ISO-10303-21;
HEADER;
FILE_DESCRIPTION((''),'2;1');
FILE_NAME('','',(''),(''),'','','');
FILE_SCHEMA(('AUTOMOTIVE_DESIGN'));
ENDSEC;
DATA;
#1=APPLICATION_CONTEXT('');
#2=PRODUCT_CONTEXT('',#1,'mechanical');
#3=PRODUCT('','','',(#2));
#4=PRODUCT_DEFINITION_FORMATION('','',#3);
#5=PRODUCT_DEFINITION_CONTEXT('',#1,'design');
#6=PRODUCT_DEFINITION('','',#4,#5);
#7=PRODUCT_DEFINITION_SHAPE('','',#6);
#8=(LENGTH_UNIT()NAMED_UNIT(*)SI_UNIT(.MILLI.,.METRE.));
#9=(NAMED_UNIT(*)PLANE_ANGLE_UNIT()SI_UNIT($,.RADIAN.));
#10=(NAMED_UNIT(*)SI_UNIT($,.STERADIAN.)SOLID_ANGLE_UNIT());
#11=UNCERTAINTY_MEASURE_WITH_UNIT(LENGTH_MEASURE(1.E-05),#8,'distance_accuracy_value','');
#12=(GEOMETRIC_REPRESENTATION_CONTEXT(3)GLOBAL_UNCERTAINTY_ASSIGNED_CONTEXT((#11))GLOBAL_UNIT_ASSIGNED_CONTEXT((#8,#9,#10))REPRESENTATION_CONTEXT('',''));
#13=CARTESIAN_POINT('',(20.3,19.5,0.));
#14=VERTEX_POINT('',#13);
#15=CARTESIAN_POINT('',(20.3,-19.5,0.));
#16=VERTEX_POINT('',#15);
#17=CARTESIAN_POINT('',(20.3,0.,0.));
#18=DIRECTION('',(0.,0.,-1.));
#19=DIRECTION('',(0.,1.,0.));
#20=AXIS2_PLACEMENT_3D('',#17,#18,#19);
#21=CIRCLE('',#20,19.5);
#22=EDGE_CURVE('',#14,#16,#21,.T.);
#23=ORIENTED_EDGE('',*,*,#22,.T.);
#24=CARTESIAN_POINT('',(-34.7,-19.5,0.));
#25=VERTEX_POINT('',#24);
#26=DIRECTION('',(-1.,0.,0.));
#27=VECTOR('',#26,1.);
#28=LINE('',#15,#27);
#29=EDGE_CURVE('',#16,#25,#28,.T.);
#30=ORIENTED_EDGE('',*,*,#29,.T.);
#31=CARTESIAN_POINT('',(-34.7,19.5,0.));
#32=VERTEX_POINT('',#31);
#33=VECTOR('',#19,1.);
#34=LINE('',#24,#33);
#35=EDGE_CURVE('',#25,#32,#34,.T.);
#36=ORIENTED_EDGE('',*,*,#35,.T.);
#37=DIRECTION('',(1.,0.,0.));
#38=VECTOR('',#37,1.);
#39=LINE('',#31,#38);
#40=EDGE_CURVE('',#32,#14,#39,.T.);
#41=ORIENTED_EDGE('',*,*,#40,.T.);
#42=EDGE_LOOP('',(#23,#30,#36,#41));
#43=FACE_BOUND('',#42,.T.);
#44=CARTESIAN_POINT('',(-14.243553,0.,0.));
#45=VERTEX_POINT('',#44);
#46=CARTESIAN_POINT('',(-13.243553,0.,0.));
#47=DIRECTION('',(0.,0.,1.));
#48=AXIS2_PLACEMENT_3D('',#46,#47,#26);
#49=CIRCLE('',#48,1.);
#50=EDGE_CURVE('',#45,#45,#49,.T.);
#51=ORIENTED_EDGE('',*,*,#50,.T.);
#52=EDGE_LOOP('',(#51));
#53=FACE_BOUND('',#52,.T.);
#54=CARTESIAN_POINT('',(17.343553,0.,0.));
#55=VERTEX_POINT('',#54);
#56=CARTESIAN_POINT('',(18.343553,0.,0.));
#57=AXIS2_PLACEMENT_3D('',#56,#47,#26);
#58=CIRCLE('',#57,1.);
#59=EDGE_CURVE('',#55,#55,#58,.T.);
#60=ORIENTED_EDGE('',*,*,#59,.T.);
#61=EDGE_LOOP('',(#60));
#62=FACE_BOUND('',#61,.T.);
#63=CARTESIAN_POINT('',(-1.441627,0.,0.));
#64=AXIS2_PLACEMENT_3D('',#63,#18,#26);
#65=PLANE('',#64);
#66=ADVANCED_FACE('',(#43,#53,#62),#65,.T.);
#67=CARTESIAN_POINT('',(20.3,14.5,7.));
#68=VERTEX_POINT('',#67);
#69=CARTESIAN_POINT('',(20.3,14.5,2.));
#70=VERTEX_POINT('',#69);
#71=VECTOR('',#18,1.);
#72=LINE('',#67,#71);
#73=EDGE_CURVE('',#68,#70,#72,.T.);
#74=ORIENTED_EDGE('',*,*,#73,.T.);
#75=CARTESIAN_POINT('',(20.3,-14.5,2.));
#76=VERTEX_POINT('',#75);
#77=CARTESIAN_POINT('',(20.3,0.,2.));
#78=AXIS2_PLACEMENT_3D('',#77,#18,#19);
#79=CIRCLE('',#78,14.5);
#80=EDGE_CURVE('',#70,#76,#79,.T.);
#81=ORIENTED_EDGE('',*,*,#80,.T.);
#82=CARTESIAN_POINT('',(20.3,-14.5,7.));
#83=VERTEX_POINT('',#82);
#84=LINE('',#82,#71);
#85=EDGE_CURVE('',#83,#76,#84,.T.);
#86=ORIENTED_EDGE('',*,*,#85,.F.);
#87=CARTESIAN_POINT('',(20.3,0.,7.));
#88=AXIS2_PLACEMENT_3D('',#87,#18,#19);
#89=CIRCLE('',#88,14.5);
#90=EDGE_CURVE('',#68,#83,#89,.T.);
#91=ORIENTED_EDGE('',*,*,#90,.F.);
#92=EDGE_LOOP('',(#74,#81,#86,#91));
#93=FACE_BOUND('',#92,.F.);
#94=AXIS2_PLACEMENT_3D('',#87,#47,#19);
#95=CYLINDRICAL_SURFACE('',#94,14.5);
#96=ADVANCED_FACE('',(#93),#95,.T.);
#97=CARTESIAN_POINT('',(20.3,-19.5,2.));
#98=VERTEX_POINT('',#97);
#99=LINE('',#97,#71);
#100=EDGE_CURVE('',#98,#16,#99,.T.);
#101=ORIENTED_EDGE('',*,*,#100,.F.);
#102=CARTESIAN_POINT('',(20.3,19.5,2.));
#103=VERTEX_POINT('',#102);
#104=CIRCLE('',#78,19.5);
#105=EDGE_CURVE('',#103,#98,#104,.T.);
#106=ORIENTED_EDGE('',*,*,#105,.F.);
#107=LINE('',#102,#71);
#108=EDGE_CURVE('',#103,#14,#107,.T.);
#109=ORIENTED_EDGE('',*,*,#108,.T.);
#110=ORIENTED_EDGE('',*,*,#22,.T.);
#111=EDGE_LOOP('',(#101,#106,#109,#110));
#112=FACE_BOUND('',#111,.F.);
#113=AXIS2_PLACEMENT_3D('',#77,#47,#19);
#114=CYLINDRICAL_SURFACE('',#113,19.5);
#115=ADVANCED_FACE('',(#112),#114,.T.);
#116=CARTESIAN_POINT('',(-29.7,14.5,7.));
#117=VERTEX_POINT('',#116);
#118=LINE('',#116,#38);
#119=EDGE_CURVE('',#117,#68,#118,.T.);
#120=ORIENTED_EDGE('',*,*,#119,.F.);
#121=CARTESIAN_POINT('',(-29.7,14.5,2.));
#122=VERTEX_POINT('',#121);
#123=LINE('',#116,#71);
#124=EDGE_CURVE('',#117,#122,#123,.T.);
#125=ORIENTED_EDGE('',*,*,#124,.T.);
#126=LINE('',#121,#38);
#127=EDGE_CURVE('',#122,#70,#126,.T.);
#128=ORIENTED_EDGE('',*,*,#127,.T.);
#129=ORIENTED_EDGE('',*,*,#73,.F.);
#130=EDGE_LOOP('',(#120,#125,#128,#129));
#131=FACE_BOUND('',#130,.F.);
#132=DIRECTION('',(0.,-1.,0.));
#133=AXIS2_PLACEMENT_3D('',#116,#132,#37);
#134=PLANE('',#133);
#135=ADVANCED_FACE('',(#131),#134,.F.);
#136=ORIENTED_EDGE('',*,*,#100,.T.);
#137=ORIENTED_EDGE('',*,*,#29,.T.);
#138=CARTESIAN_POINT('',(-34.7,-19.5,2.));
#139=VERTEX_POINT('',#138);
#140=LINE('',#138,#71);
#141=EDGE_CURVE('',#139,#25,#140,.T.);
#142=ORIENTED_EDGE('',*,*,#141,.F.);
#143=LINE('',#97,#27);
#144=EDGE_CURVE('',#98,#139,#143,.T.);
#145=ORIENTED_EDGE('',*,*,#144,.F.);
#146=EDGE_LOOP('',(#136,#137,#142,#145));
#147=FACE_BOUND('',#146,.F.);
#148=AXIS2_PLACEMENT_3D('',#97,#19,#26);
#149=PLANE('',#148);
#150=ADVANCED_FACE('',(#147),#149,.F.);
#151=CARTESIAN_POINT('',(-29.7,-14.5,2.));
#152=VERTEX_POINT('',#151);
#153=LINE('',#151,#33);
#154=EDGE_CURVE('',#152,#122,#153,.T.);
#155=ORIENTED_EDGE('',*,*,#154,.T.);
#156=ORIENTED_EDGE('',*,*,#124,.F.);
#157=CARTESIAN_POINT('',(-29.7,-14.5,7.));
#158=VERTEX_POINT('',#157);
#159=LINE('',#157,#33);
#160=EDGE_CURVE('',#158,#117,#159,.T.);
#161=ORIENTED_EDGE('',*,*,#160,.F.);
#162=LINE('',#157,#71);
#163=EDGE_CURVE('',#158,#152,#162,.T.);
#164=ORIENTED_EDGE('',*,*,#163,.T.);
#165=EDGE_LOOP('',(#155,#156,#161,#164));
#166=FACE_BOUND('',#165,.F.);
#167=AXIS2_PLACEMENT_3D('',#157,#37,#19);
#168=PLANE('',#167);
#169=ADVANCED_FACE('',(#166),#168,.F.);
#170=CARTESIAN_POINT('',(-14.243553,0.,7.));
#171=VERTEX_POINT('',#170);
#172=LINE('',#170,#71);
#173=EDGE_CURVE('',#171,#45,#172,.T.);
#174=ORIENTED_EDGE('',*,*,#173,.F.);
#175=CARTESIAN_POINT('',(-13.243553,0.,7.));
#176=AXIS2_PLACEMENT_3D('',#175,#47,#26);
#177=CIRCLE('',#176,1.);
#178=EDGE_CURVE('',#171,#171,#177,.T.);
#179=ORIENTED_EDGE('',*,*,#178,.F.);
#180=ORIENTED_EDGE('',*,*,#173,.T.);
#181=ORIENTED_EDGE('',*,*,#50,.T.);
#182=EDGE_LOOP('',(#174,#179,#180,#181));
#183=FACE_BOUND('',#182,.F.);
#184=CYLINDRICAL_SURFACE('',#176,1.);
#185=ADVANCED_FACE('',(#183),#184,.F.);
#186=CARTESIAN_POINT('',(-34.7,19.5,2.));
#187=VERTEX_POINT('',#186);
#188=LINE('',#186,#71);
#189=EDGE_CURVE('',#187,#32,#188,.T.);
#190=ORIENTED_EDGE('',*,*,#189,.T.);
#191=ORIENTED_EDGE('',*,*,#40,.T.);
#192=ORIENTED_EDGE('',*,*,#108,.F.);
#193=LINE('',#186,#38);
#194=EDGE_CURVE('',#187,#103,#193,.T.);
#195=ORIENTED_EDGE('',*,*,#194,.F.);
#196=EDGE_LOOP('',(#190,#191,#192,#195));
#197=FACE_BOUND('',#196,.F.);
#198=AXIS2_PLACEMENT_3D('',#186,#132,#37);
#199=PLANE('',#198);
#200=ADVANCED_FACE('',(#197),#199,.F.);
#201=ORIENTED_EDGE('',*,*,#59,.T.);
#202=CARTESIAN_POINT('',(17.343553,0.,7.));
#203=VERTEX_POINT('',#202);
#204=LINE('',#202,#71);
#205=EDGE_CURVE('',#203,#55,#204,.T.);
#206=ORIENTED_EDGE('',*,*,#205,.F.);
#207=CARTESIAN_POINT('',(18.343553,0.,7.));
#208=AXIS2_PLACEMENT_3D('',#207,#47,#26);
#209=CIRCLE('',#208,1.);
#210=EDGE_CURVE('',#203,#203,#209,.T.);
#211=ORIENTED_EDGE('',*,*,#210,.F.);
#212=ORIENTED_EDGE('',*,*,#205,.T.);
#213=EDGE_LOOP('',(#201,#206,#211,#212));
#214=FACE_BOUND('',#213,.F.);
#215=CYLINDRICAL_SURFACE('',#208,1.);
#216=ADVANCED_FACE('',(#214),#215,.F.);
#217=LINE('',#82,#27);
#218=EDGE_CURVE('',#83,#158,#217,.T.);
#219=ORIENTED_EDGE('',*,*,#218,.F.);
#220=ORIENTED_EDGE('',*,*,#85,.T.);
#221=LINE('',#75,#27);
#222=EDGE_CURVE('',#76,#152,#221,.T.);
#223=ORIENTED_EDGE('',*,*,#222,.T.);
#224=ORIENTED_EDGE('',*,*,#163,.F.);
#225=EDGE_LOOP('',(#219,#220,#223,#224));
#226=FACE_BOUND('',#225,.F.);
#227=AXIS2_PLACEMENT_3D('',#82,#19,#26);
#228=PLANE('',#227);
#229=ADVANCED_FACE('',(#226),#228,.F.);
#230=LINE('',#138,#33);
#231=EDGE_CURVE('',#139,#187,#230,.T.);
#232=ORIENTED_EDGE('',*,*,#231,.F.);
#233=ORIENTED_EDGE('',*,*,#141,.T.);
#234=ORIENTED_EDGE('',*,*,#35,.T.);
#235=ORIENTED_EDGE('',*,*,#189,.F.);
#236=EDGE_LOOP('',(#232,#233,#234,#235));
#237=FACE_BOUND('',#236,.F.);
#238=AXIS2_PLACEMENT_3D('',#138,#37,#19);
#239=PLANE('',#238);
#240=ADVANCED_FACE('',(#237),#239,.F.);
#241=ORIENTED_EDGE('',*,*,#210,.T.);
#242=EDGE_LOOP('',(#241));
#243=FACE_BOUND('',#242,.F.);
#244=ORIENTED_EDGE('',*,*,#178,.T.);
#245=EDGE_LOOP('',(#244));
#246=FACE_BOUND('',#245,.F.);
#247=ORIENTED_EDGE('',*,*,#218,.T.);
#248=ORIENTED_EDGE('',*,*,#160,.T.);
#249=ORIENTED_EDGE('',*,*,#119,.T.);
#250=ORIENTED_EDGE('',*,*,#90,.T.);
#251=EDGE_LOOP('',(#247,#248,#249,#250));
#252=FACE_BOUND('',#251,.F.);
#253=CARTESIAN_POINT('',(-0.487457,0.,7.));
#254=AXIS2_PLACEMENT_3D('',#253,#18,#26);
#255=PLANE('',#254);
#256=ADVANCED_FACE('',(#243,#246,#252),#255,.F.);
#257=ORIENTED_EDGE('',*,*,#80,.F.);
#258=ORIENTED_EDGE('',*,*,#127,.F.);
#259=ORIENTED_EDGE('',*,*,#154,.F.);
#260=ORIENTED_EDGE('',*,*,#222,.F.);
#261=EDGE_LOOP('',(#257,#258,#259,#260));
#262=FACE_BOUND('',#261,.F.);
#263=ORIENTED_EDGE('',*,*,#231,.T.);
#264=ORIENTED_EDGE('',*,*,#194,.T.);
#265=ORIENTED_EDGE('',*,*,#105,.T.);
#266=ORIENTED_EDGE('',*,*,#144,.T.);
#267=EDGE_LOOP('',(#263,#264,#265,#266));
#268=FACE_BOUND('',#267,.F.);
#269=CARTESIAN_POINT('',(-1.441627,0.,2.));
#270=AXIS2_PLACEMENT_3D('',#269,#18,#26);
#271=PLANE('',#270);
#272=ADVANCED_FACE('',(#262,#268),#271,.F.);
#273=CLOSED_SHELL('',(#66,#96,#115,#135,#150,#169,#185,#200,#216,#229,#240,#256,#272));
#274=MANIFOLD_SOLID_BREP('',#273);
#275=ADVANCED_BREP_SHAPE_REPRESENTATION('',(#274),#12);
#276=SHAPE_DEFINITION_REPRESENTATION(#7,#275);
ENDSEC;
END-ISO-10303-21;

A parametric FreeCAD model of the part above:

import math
import FreeCAD as App
import Part
import Sketcher

doc = App.newDocument("Part")
body = doc.addObject("PartDesign::Body", "Body")

# Sketch on XY plane
sketch1 = body.newObject("Sketcher::SketchObject", "Sketch")
sketch1.AttachmentSupport = (doc.getObject("XY_Plane"), [""])
sketch1.MapMode = "FlatFace"
sketch1.addGeometry(Part.ArcOfCircle(Part.Circle(App.Vector(-25, 0, 0), App.Vector(0, 0, 1), 14.5), math.radians(90), math.radians(270)), False)
sketch1.addGeometry(Part.LineSegment(App.Vector(-25, -14.5, 0), App.Vector(25, -14.5, 0)), False)
sketch1.addGeometry(Part.LineSegment(App.Vector(25, -14.5, 0), App.Vector(25, 14.5, 0)), False)
sketch1.addGeometry(Part.LineSegment(App.Vector(25, 14.5, 0), App.Vector(-25, 14.5, 0)), False)
sketch1.addConstraint(Sketcher.Constraint("Tangent", 0, 2, 1, 1))
sketch1.addConstraint(Sketcher.Constraint("Coincident", 1, 2, 2, 1))
sketch1.addConstraint(Sketcher.Constraint("Coincident", 2, 2, 3, 1))
sketch1.addConstraint(Sketcher.Constraint("Tangent", 3, 2, 0, 1))
sketch1.addConstraint(Sketcher.Constraint("Horizontal", 1))
sketch1.addConstraint(Sketcher.Constraint("Vertical", 2))
sketch1.addConstraint(Sketcher.Constraint("Horizontal", 3))
sketch1.addConstraint(Sketcher.Constraint("Symmetric", 0, 2, 2, 2, -1, 1))
sketch1.addConstraint(Sketcher.Constraint("Radius", 0, 14.5))
sketch1.addConstraint(Sketcher.Constraint("DistanceX", 1, 1, 1, 2, 50.0))
pad1 = body.newObject("PartDesign::Pad", "Pad")
pad1.Profile = sketch1
pad1.Length = 5

# Sketch on XY plane
sketch2 = body.newObject("Sketcher::SketchObject", "Sketch001")
sketch2.AttachmentSupport = (doc.getObject("XY_Plane"), [""])
sketch2.MapMode = "FlatFace"
sketch2.AttachmentOffset = App.Placement(App.Vector(0, 0, 5), App.Rotation())
sketch2.addGeometry(Part.LineSegment(App.Vector(-25, -19.5, 0), App.Vector(30, -19.5, 0)), False)
sketch2.addGeometry(Part.LineSegment(App.Vector(30, -19.5, 0), App.Vector(30, 19.5, 0)), False)
sketch2.addGeometry(Part.LineSegment(App.Vector(30, 19.5, 0), App.Vector(-25, 19.5, 0)), False)
sketch2.addGeometry(Part.ArcOfCircle(Part.Circle(App.Vector(-25, 0, 0), App.Vector(0, 0, 1), 19.5), math.radians(90), math.radians(270)), False)
sketch2.addConstraint(Sketcher.Constraint("Coincident", 0, 2, 1, 1))
sketch2.addConstraint(Sketcher.Constraint("Coincident", 1, 2, 2, 1))
sketch2.addConstraint(Sketcher.Constraint("Tangent", 2, 2, 3, 1))
sketch2.addConstraint(Sketcher.Constraint("Tangent", 3, 2, 0, 1))
sketch2.addConstraint(Sketcher.Constraint("Horizontal", 0))
sketch2.addConstraint(Sketcher.Constraint("Vertical", 1))
sketch2.addConstraint(Sketcher.Constraint("Horizontal", 2))
sketch2.addConstraint(Sketcher.Constraint("PointOnObject", 3, 3, -1))
sketch2.addConstraint(Sketcher.Constraint("Radius", 3, 19.5))
sketch2.addConstraint(Sketcher.Constraint("DistanceX", 0, 1, 0, 2, 55.0))
sketch2.addConstraint(Sketcher.Constraint("DistanceX", 3, 3, -1, 1, 25.0))
pad2 = body.newObject("PartDesign::Pad", "Pad001")
pad2.Profile = sketch2
pad2.Length = 2

# Sketch on XY plane
sketch3 = body.newObject("Sketcher::SketchObject", "Sketch002")
sketch3.AttachmentSupport = (doc.getObject("XY_Plane"), [""])
sketch3.MapMode = "FlatFace"
sketch3.addGeometry(Part.Circle(App.Vector(8.543553, 0, 0), App.Vector(0, 0, 1), 1), False)
sketch3.addGeometry(Part.Circle(App.Vector(-23.043553, 0, 0), App.Vector(0, 0, 1), 1), False)
sketch3.addConstraint(Sketcher.Constraint("Equal", 0, 1))
sketch3.addConstraint(Sketcher.Constraint("PointOnObject", 0, 3, -1))
sketch3.addConstraint(Sketcher.Constraint("PointOnObject", 1, 3, -1))
sketch3.addConstraint(Sketcher.Constraint("Diameter", 0, 2.0))
sketch3.addConstraint(Sketcher.Constraint("DistanceX", -1, 1, 0, 3, 8.543553))
sketch3.addConstraint(Sketcher.Constraint("DistanceX", 1, 3, -1, 1, 23.043553))
pocket1 = body.newObject("PartDesign::Pocket", "Pocket")
pocket1.Profile = sketch3
pocket1.Length = 25
pocket1.Reversed = True
body2 = doc.addObject("PartDesign::Body", "Body001")
doc.recompute()

body.Placement = App.Placement(App.Vector(60, 0, 14), App.Rotation(App.Vector(0, 1, 0), 180))
boolean = body2.newObject("PartDesign::Boolean", "Boolean")
boolean.Type = "Fuse"
boolean.addObjects([body])
body3 = doc.addObject("PartDesign::Body", "Body002")
doc.recompute()

body2.Placement = App.Placement(App.Vector(-64.7, 0, -7), App.Rotation(App.Vector(0, 0, 1), 0))
boolean2 = body3.newObject("PartDesign::Boolean", "Boolean001")
boolean2.Type = "Fuse"
boolean2.addObjects([body2])

doc.recompute()
